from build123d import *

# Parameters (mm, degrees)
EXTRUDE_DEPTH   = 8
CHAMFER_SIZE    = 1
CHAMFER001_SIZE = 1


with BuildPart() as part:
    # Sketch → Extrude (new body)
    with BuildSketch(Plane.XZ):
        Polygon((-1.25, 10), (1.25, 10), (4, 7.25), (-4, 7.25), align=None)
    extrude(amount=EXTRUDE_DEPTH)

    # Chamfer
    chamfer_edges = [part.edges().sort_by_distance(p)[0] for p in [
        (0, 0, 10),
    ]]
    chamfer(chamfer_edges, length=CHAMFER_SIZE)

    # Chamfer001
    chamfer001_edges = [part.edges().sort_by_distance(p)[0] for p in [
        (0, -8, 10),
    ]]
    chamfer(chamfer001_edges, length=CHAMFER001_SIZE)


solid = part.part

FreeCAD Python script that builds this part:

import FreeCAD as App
import Part
import Sketcher
from FreeCAD import Vector
Q = App.Units.Quantity


def edges_at(feature, points):
    """Names of the edges that pass closest to the given points."""
    edges = feature.Shape.Edges
    near = lambda p: min(range(len(edges)), key=lambda i: edges[i].distToShape(Part.Vertex(*p))[0])
    return sorted({f"Edge{near(p) + 1}" for p in points})


def add_polygon(sketch, points):
    """Adds a closed chain of lines whose ends are joined by coincident constraints."""
    first, n = sketch.GeometryCount, len(points)
    for a, b in zip(points, points[1:] + points[:1]):
        sketch.addGeometry(Part.LineSegment(App.Vector(*a, 0), App.Vector(*b, 0)), False)
    for i in range(n):
        sketch.addConstraint(Sketcher.Constraint("Coincident", first + i, 2, first + (i + 1) % n, 1))

doc = App.newDocument("Part")
params = doc.addObject("Spreadsheet::Sheet", "Params")
for row, (alias, value) in enumerate([
    ("sketch1_width", "8 mm"),
    ("sketch1_width2", "2.5 mm"),
    ("pad1_length", "8 mm"),
    ("chamfer_size", "1 mm"),
    ("chamfer2_size", "1 mm"),
], start=1):
    params.set(f"A{row}", alias)
    params.set(f"B{row}", "=" + value)
    params.setAlias(f"B{row}", alias)

body = doc.addObject("PartDesign::Body", "Body")

sketch1 = body.newObject("Sketcher::SketchObject", "Sketch")
sketch1.AttachmentSupport = (doc.getObject("XZ_Plane"), [""])
sketch1.MapMode = "FlatFace"
add_polygon(sketch1, [(1.2, 10), (-1.2, 10), (-4, 7.2), (4, 7.2)])
sketch1.addConstraint([
    Sketcher.Constraint("Horizontal", 0),
    Sketcher.Constraint("Horizontal", 2),
    Sketcher.Constraint("Perpendicular", 1, 3),
    Sketcher.Constraint("Equal", 1, 3),
    Sketcher.Constraint("DistanceX", 2, 1, 2, 2, Q("8 mm")),
    Sketcher.Constraint("DistanceX", 0, 2, 0, 1, Q("2.5 mm")),
    Sketcher.Constraint("DistanceY", -1, 1, 0, 2, Q("10 mm")),
    Sketcher.Constraint("DistanceX", 1, 2, -1, 1, Q("4 mm")),
])
sketch1.setExpression("Constraints[8]", "Params.sketch1_width")
sketch1.setExpression("Constraints[9]", "Params.sketch1_width2")
pad1 = body.newObject("PartDesign::Pad", "Pad")
pad1.Profile = sketch1
pad1.setExpression("Length", "Params.pad1_length")
doc.recompute()

chamfer = body.newObject("PartDesign::Chamfer", "Chamfer")
chamfer.Base = (pad1, edges_at(pad1, [(0, 0, 10)]))
chamfer.setExpression("Size", "Params.chamfer_size")
doc.recompute()

chamfer2 = body.newObject("PartDesign::Chamfer", "Chamfer001")
chamfer2.Base = (chamfer, edges_at(chamfer, [(0, -8, 10)]))
chamfer2.setExpression("Size", "Params.chamfer2_size")

doc.recompute()
